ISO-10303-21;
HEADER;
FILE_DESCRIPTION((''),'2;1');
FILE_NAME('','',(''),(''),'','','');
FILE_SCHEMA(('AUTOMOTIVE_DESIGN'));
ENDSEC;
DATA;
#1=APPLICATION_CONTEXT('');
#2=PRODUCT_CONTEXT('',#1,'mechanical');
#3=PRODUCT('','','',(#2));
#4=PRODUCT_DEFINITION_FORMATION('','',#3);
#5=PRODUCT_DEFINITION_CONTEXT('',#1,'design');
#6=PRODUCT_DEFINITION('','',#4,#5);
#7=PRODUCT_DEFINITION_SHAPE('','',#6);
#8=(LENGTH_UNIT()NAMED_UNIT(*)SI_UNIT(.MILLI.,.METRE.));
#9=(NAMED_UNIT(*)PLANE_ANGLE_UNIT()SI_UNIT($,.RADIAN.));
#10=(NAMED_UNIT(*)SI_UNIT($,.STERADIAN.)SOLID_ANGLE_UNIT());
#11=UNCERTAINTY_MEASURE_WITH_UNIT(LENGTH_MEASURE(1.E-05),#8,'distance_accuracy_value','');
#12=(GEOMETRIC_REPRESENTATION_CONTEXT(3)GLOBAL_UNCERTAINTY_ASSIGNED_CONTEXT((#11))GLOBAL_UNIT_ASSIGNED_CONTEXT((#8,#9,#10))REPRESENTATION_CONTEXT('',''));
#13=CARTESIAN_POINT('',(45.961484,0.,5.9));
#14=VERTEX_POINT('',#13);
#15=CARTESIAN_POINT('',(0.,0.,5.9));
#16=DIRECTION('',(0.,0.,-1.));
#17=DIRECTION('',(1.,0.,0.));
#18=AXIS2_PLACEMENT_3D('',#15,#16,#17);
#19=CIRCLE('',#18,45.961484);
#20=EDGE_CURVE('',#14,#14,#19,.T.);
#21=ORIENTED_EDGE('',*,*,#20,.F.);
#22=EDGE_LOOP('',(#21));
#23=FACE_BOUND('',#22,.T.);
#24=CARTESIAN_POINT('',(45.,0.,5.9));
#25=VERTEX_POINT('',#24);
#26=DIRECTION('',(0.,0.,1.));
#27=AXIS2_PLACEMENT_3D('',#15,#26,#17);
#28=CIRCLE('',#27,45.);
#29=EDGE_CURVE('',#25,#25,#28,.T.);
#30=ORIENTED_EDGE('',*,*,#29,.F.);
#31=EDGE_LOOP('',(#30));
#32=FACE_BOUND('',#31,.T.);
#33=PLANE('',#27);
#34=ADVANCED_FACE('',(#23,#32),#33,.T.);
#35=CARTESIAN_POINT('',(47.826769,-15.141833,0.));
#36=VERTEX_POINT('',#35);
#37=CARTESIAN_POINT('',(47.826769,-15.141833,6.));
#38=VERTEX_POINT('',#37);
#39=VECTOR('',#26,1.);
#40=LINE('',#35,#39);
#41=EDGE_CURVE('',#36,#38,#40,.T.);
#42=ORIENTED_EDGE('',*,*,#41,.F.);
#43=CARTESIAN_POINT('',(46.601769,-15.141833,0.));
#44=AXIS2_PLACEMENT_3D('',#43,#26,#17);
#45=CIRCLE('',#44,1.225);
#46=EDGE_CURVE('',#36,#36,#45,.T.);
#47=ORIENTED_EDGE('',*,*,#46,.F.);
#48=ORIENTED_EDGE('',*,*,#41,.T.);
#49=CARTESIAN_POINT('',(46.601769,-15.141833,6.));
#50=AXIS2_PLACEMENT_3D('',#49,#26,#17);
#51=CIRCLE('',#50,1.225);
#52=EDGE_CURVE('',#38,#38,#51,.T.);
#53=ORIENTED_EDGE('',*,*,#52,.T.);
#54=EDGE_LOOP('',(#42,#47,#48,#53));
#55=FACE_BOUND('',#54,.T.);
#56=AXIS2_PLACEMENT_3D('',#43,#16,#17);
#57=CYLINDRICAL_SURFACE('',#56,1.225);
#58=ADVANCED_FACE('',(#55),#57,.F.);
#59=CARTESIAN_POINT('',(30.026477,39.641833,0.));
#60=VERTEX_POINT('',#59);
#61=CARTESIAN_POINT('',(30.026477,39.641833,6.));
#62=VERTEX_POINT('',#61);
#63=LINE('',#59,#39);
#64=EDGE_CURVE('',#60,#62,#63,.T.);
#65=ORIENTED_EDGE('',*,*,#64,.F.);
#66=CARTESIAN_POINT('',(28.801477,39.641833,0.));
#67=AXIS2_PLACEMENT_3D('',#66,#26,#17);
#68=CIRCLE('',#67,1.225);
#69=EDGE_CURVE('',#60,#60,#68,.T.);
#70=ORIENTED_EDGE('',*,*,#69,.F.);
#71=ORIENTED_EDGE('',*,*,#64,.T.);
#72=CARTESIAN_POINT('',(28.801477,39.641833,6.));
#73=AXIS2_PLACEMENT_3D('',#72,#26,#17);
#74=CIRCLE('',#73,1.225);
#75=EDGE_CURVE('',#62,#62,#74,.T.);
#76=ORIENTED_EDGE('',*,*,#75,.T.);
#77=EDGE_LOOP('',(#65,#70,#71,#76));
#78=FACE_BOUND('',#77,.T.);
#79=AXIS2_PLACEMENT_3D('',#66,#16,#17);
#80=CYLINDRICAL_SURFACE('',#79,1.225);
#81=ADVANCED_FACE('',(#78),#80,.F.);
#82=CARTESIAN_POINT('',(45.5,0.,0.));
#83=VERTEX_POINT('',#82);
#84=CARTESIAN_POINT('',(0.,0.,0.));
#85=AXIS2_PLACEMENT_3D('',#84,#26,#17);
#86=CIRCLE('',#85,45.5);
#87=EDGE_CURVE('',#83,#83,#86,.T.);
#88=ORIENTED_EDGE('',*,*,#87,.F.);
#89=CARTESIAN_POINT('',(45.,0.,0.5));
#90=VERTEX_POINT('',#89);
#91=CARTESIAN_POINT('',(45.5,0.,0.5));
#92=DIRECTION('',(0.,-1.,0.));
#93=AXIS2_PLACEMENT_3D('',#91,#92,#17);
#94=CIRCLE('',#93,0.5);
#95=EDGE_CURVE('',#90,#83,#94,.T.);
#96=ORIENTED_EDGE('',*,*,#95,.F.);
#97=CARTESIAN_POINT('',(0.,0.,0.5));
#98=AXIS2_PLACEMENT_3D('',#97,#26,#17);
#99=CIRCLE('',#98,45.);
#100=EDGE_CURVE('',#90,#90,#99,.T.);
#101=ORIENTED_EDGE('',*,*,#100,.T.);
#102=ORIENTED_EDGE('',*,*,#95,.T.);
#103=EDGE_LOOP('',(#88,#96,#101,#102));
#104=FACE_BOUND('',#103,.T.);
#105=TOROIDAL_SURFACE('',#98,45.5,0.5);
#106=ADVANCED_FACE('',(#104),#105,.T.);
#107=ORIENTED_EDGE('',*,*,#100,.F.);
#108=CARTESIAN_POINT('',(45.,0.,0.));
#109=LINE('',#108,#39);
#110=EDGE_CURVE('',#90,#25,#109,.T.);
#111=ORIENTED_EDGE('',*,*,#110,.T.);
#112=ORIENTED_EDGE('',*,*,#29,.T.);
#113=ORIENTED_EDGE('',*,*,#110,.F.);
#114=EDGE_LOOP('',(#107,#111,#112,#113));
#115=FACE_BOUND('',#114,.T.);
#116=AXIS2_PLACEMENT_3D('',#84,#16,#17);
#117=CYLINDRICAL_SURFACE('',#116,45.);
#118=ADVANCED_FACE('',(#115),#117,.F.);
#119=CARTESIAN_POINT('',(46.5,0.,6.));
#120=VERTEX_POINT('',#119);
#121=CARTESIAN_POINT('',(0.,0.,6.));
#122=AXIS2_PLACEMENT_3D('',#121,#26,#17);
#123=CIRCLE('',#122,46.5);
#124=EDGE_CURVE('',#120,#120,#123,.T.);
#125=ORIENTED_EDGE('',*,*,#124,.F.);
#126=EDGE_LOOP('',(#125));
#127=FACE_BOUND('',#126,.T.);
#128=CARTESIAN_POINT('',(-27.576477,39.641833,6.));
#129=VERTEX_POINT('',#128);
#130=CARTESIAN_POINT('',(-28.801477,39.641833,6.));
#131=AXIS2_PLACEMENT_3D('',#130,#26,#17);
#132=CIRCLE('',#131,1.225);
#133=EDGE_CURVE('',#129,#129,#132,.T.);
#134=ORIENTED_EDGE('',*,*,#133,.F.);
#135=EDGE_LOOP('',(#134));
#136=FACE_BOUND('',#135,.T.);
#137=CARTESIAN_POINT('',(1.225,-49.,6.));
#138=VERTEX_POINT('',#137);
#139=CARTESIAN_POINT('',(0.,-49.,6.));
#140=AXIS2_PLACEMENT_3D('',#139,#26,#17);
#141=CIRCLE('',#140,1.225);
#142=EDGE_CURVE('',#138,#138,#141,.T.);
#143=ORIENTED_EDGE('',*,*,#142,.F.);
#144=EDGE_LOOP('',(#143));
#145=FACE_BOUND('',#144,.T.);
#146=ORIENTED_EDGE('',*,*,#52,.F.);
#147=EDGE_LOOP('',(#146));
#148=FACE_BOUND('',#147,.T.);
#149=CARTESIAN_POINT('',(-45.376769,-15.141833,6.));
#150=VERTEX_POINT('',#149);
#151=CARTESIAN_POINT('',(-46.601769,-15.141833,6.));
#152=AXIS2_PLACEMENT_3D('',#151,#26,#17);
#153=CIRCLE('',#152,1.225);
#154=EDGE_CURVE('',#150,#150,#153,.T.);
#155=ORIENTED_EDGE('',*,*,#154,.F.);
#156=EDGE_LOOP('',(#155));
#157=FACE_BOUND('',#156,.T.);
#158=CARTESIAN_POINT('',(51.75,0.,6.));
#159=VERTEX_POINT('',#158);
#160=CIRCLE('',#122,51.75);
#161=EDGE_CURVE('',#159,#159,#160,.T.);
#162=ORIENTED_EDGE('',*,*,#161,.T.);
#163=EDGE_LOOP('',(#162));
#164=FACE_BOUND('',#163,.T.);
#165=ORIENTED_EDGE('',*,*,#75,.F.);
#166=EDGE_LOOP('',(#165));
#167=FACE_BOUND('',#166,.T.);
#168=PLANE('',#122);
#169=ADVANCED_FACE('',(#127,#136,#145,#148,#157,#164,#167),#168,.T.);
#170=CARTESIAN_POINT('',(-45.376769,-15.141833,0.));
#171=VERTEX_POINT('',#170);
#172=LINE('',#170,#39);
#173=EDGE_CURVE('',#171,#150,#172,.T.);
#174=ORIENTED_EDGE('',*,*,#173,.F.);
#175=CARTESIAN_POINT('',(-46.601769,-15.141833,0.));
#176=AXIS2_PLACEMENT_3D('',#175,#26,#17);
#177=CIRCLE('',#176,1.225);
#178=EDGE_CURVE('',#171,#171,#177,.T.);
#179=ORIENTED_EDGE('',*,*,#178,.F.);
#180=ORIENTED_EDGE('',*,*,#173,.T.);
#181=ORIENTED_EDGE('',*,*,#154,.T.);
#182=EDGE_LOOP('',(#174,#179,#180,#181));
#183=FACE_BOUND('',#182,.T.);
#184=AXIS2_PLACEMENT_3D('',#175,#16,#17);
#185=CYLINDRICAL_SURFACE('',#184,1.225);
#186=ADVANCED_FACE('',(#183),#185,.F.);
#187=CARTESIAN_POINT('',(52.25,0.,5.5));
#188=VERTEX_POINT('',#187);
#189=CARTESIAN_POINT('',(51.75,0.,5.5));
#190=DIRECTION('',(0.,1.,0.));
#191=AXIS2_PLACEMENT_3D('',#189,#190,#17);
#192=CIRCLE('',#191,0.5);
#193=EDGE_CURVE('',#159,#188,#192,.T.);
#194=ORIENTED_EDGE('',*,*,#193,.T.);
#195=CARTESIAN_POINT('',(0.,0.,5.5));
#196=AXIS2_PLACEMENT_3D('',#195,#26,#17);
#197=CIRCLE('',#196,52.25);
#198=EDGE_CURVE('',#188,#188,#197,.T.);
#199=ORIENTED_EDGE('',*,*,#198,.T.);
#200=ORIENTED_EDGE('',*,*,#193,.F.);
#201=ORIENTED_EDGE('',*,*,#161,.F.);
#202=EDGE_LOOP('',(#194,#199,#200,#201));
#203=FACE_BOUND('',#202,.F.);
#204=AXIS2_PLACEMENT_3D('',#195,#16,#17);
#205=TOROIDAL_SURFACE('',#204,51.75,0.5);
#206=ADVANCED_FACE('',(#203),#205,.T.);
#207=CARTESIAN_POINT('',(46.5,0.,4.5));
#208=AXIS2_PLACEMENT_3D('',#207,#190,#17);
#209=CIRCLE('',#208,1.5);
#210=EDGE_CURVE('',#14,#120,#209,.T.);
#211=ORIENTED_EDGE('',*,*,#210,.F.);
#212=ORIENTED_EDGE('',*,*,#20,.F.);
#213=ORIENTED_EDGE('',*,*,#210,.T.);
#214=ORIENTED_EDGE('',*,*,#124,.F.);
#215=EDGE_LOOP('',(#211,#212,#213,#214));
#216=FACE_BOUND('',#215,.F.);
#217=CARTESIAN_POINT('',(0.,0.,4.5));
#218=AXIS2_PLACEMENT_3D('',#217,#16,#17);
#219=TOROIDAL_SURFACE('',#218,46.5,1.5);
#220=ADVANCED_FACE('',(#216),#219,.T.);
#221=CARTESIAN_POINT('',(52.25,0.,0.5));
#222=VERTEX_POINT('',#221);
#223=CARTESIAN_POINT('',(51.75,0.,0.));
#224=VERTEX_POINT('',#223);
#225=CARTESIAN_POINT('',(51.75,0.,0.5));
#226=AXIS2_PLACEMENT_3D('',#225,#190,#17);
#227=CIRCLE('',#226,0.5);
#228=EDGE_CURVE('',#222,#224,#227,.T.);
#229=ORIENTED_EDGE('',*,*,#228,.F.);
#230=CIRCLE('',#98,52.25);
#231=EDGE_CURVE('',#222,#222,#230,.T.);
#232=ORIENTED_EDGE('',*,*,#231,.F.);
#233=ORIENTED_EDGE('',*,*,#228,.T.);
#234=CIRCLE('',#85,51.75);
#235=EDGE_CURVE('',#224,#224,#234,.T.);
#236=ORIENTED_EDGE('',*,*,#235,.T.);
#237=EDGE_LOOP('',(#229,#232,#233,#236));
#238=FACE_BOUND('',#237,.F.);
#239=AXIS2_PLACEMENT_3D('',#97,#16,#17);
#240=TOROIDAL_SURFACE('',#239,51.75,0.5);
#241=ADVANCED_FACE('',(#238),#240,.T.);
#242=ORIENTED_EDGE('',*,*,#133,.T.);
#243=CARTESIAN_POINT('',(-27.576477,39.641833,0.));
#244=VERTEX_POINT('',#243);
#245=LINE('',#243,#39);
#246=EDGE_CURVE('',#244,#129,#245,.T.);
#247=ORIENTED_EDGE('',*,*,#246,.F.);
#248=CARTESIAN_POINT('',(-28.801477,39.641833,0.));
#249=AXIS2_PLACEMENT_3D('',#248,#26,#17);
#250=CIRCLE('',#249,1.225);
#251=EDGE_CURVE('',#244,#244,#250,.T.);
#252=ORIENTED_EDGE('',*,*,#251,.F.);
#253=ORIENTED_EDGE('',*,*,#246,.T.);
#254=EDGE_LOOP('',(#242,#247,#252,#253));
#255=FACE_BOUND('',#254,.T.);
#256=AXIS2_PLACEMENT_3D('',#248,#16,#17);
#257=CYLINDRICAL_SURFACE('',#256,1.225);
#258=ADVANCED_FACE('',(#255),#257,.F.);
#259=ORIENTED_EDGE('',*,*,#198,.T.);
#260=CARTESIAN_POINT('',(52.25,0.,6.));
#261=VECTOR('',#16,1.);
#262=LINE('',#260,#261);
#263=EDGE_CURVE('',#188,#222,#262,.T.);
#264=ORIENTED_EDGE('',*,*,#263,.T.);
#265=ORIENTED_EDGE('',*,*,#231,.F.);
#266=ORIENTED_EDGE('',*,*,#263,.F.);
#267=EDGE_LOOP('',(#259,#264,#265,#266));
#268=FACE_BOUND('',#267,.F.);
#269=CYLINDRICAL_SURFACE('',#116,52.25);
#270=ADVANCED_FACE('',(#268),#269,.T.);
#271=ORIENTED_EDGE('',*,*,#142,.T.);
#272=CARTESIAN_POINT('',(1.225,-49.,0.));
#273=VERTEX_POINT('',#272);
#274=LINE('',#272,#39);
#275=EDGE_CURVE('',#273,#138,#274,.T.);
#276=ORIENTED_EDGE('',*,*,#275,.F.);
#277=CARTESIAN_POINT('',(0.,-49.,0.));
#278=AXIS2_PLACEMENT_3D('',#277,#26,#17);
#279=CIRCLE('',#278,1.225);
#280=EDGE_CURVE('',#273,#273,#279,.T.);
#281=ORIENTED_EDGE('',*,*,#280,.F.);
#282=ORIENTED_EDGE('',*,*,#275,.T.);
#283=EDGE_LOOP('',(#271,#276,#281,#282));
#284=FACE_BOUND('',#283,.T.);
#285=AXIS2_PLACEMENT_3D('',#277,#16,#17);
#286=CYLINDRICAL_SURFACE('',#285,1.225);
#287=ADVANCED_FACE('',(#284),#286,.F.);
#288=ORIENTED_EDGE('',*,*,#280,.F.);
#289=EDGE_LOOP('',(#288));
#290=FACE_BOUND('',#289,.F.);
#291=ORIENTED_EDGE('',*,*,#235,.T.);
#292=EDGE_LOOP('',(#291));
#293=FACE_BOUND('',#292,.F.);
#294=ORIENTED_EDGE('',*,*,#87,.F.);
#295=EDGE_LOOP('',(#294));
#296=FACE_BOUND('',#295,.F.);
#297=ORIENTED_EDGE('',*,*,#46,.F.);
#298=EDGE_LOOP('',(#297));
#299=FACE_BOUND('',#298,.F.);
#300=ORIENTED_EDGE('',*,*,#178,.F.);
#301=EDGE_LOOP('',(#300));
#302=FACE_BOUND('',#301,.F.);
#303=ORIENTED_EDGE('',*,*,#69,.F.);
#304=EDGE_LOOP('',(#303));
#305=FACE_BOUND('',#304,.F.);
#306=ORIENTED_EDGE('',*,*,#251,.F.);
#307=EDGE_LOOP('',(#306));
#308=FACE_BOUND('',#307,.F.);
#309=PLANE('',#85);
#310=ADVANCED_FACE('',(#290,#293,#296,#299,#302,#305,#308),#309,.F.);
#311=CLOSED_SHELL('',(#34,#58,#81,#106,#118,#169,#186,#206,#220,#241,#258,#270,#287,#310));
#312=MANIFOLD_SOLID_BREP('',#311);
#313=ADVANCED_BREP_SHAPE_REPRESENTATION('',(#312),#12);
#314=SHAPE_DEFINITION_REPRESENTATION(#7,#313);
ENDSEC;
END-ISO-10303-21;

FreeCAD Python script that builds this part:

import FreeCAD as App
import Part
import Sketcher


def edges_at(feature, points):
    """Names of the edges that pass closest to the given points."""
    edges = feature.Shape.Edges
    near = lambda p: min(range(len(edges)), key=lambda i: edges[i].distToShape(Part.Vertex(*p))[0])
    return sorted({f"Edge{near(p) + 1}" for p in points})

doc = App.newDocument("Part")
params = doc.addObject("Spreadsheet::Sheet", "Params")
for row, (alias, value) in enumerate([
    ("sketch1_diameter", "90 mm"),
    ("sketch1_diameter2", "104.5 mm"),
    ("sketch1_diameter3", "2.45 mm"),
    ("pad1_length", "6 mm"),
    ("fillet_radius", "1.5 mm"),
    ("sketch2_diameter", "90 mm"),
    ("sketch2_diameter2", "104.5 mm"),
    ("sketch2_diameter3", "2.45 mm"),
    ("pad2_length", "5.9 mm"),
    ("fillet2_radius", "0.5 mm"),
], start=1):
    params.set(f"A{row}", alias)
    params.set(f"B{row}", "=" + value)
    params.setAlias(f"B{row}", alias)

body = doc.addObject("PartDesign::Body", "Body")

sketch1 = body.newObject("Sketcher::SketchObject", "Sketch")
sketch1.AttachmentSupport = (doc.getObject("XY_Plane"), [""])
sketch1.MapMode = "FlatFace"
sketch1.addGeometry([
    Part.Circle(App.Vector(0, 0, 0), App.Vector(0, 0, 1), 52.2),
    Part.Circle(App.Vector(-46.6, -15.1, 0), App.Vector(0, 0, 1), 1.2),
    Part.Circle(App.Vector(0, -49, 0), App.Vector(0, 0, 1), 1.2),
    Part.Circle(App.Vector(46.6, -15.1, 0), App.Vector(0, 0, 1), 1.2),
    Part.Circle(App.Vector(-28.8, 39.6, 0), App.Vector(0, 0, 1), 1.2),
    Part.Circle(App.Vector(0, 0, 0), App.Vector(0, 0, 1), 45),
    Part.Circle(App.Vector(28.8, 39.6, 0), App.Vector(0, 0, 1), 1.2),
], False)
sketch1.addConstraint([
    Sketcher.Constraint("Coincident", 0, 3, -1, 1),
    Sketcher.Constraint("Coincident", 5, 3, -1, 1),
    Sketcher.Constraint("Equal", 1, 2),
    Sketcher.Constraint("Equal", 2, 3),
    Sketcher.Constraint("Equal", 3, 4),
    Sketcher.Constraint("Equal", 4, 6),
    Sketcher.Constraint("Symmetric", 1, 3, 3, 3, -2),
    Sketcher.Constraint("Symmetric", 4, 3, 6, 3, -2),
    Sketcher.Constraint("PointOnObject", 2, 3, -2),
    Sketcher.Constraint("Diameter", 5, 90.0),
    Sketcher.Constraint("Diameter", 0, 104.5),
    Sketcher.Constraint("Diameter", 1, 2.45),
    Sketcher.Constraint("DistanceY", 2, 3, -1, 1, 49.0),
    Sketcher.Constraint("DistanceX", 1, 3, -1, 1, 46.601769),
    Sketcher.Constraint("DistanceX", 1, 3, 4, 3, 17.800292),
    Sketcher.Constraint("DistanceY", 1, 3, -1, 1, 15.141833),
    Sketcher.Constraint("DistanceY", -1, 1, 4, 3, 39.641833),
])
sketch1.setExpression("Constraints[9]", "Params.sketch1_diameter")
sketch1.setExpression("Constraints[10]", "Params.sketch1_diameter2")
sketch1.setExpression("Constraints[11]", "Params.sketch1_diameter3")
pad1 = body.newObject("PartDesign::Pad", "Pad")
pad1.Profile = sketch1
pad1.setExpression("Length", "Params.pad1_length")
doc.recompute()

fillet = body.newObject("PartDesign::Fillet", "Fillet")
fillet.Base = (pad1, edges_at(pad1, [(-45, 0, 6)]))
fillet.setExpression("Radius", "Params.fillet_radius")

sketch2 = body.newObject("Sketcher::SketchObject", "Sketch001")
sketch2.AttachmentSupport = (doc.getObject("XY_Plane"), [""])
sketch2.MapMode = "FlatFace"
sketch2.addGeometry([
    Part.Circle(App.Vector(0, 0, 0), App.Vector(0, 0, 1), 52.2),
    Part.Circle(App.Vector(-46.6, -15.1, 0), App.Vector(0, 0, 1), 1.2),
    Part.Circle(App.Vector(0, -49, 0), App.Vector(0, 0, 1), 1.2),
    Part.Circle(App.Vector(46.6, -15.1, 0), App.Vector(0, 0, 1), 1.2),
    Part.Circle(App.Vector(-28.8, 39.6, 0), App.Vector(0, 0, 1), 1.2),
    Part.Circle(App.Vector(0, 0, 0), App.Vector(0, 0, 1), 45),
    Part.Circle(App.Vector(28.8, 39.6, 0), App.Vector(0, 0, 1), 1.2),
], False)
sketch2.addConstraint([
    Sketcher.Constraint("Coincident", 0, 3, -1, 1),
    Sketcher.Constraint("Coincident", 5, 3, -1, 1),
    Sketcher.Constraint("Equal", 1, 2),
    Sketcher.Constraint("Equal", 2, 3),
    Sketcher.Constraint("Equal", 3, 4),
    Sketcher.Constraint("Equal", 4, 6),
    Sketcher.Constraint("Symmetric", 1, 3, 3, 3, -2),
    Sketcher.Constraint("Symmetric", 4, 3, 6, 3, -2),
    Sketcher.Constraint("PointOnObject", 2, 3, -2),
    Sketcher.Constraint("Diameter", 5, 90.0),
    Sketcher.Constraint("Diameter", 0, 104.5),
    Sketcher.Constraint("Diameter", 1, 2.45),
    Sketcher.Constraint("DistanceY", 2, 3, -1, 1, 49.0),
    Sketcher.Constraint("DistanceX", 1, 3, -1, 1, 46.601769),
    Sketcher.Constraint("DistanceX", 1, 3, 4, 3, 17.800292),
    Sketcher.Constraint("DistanceY", 1, 3, -1, 1, 15.141833),
    Sketcher.Constraint("DistanceY", -1, 1, 4, 3, 39.641833),
])
sketch2.setExpression("Constraints[9]", "Params.sketch2_diameter")
sketch2.setExpression("Constraints[10]", "Params.sketch2_diameter2")
sketch2.setExpression("Constraints[11]", "Params.sketch2_diameter3")
pad2 = body.newObject("PartDesign::Pad", "Pad001")
pad2.Profile = sketch2
pad2.setExpression("Length", "Params.pad2_length")
doc.recompute()

fillet2 = body.newObject("PartDesign::Fillet", "Fillet001")
fillet2.Base = (pad2, edges_at(pad2, [(-45, 0, 0), (-52.25, 0, 0), (-52.25, 0, 6)]))
fillet2.setExpression("Radius", "Params.fillet2_radius")

doc.recompute()
